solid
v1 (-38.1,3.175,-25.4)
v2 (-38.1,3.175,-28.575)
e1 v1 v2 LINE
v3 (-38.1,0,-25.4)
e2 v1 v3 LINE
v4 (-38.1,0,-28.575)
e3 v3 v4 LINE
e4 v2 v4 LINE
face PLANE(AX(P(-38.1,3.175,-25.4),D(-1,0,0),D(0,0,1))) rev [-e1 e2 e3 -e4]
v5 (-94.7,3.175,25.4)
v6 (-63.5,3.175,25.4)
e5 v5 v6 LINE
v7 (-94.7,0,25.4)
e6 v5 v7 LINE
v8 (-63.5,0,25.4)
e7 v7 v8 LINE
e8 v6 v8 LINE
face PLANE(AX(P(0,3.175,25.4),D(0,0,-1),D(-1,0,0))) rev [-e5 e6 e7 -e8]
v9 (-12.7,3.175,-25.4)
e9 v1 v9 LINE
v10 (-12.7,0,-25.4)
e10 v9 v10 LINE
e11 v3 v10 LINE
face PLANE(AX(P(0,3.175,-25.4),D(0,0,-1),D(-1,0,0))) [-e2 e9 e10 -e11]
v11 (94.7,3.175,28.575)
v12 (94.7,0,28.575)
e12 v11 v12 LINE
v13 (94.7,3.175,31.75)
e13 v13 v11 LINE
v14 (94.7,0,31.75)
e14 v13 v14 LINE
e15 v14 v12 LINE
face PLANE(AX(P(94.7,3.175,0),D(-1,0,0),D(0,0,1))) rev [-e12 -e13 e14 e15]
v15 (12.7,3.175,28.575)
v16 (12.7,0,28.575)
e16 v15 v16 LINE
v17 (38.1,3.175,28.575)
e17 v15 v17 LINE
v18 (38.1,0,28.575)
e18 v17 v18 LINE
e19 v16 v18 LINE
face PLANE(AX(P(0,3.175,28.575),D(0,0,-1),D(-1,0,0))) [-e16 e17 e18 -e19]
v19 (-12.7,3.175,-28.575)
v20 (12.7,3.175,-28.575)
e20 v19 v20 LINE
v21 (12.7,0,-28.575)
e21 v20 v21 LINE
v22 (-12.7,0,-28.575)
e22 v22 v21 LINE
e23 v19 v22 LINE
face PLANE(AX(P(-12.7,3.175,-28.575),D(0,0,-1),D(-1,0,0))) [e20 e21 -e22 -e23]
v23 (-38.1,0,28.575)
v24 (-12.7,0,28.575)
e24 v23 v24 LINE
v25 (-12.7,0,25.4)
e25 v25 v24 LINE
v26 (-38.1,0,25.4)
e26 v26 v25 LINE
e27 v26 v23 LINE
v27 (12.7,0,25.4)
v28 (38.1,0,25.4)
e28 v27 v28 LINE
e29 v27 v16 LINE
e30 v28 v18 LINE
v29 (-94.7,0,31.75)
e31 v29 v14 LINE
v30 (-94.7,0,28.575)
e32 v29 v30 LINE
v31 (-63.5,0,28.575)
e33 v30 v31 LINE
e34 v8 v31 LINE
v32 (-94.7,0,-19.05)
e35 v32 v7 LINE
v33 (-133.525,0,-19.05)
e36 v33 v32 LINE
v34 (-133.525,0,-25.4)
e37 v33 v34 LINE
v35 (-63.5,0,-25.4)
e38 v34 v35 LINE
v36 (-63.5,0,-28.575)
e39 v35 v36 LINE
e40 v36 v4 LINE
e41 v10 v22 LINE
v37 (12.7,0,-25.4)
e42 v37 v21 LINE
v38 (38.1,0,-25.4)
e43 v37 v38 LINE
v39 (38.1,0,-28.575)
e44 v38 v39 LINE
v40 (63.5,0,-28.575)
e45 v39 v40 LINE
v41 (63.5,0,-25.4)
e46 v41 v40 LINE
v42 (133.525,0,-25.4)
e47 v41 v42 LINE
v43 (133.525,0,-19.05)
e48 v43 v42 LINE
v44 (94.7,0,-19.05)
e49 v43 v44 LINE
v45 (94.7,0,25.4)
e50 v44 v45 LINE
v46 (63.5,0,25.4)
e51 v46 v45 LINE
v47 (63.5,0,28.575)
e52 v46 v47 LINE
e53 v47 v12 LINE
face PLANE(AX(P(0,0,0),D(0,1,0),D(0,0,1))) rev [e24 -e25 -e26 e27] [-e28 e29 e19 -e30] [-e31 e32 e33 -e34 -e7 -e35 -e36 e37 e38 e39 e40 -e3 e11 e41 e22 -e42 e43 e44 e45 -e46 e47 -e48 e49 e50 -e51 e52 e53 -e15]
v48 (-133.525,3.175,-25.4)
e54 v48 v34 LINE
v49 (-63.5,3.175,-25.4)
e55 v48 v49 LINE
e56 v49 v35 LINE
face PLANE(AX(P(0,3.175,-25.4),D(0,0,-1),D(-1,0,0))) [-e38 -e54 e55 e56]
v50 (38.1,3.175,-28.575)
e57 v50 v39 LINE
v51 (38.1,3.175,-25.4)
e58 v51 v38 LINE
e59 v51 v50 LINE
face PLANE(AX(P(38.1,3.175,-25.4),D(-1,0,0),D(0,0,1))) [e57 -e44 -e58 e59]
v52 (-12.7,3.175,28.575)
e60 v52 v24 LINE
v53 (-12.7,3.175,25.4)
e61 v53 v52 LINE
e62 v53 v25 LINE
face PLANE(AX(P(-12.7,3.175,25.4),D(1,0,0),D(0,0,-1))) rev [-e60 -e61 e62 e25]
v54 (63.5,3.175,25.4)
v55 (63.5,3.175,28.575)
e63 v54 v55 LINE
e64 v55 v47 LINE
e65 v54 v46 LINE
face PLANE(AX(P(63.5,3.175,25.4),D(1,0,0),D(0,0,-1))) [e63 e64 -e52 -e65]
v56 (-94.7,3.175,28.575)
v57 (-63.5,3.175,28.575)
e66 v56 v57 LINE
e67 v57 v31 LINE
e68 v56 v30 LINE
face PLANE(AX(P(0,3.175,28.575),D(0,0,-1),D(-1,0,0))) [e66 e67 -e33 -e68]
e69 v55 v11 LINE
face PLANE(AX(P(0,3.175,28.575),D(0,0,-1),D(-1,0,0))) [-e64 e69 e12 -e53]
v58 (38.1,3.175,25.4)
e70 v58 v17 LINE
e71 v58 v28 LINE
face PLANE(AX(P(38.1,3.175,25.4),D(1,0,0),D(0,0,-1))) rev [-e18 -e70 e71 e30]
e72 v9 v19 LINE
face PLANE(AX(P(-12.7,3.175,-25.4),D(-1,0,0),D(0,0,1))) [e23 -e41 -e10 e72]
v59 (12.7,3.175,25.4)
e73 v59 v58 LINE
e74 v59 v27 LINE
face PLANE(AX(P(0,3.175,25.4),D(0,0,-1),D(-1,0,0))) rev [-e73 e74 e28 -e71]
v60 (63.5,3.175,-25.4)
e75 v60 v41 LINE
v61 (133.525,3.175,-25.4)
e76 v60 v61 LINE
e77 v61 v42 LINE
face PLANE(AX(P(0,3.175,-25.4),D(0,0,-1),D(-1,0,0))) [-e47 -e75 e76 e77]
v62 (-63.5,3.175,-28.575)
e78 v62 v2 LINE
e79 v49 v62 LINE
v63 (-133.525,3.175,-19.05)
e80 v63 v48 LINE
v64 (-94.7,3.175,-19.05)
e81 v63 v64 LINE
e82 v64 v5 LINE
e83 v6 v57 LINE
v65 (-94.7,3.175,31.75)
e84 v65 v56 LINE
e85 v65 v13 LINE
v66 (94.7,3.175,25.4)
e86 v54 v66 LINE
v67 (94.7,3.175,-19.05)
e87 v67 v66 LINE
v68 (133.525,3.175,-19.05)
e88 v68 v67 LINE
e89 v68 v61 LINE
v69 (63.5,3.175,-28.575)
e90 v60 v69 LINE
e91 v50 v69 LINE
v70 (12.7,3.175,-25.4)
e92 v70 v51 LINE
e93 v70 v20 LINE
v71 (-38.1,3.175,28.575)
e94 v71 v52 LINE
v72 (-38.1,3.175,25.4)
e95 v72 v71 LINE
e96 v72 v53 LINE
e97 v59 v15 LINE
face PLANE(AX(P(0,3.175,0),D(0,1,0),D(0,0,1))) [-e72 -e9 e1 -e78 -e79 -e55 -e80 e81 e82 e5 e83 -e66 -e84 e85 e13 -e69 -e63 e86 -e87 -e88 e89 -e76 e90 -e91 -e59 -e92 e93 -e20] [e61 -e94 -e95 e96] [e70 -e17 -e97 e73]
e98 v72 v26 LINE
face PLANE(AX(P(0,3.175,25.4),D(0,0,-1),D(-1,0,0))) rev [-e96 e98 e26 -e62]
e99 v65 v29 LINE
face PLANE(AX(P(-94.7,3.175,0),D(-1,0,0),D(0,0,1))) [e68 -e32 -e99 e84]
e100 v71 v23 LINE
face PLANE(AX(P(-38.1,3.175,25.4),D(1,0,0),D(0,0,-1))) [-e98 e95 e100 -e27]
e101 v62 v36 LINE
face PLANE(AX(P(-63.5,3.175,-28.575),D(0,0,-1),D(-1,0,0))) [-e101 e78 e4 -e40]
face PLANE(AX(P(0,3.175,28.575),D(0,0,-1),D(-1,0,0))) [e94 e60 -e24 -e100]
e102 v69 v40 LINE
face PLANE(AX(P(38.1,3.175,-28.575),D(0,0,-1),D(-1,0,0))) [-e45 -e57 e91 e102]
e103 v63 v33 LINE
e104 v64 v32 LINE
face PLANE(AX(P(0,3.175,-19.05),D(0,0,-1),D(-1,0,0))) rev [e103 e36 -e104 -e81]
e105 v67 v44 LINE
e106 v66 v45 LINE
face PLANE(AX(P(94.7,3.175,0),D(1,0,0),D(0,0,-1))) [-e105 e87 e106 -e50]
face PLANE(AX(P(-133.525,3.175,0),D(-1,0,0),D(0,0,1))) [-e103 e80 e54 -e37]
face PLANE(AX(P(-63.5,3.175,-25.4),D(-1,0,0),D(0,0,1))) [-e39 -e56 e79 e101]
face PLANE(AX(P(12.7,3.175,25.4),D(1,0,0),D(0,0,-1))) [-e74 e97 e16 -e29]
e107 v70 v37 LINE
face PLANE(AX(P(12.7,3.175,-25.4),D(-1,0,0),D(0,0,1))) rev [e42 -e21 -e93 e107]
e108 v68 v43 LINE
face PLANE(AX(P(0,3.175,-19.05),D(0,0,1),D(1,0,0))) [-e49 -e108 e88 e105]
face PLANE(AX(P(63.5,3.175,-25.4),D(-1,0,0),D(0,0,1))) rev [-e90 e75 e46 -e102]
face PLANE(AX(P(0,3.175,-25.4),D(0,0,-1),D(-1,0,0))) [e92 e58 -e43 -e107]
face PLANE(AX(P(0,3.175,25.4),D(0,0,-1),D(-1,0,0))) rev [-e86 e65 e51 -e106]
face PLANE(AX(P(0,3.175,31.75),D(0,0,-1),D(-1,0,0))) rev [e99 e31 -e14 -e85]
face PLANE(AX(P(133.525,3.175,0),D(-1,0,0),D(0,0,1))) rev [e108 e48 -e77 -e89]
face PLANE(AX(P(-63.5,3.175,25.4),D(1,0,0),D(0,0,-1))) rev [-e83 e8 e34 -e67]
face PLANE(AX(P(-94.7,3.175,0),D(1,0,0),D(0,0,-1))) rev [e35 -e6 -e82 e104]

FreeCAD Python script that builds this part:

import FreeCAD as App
import Part
import Sketcher
from FreeCAD import Vector
Q = App.Units.Quantity

doc = App.newDocument("Part")
params = doc.addObject("Spreadsheet::Sheet", "Params")
for row, (alias, value) in enumerate([
    ("sketch1_width", "1 in"),
    ("sketch1_height", "0.25 in"),
    ("pad1_length", "0.125 in"),
], start=1):
    params.set(f"A{row}", alias)
    params.set(f"B{row}", "=" + value)
    params.setAlias(f"B{row}", alias)

body = doc.addObject("PartDesign::Body", "Body")

sketch1 = body.newObject("Sketcher::SketchObject", "Sketch")
sketch1.AttachmentSupport = (doc.getObject("XZ_Plane"), [""])
sketch1.MapMode = "FlatFace"
sketch1.addGeometry([
    Part.LineSegment(Vector(-133.5, -25.4, 0), Vector(-133.5, -19.1, 0)),
    Part.LineSegment(Vector(-133.5, -19.1, 0), Vector(-94.7, -19.1, 0)),
    Part.LineSegment(Vector(-94.7, -19.1, 0), Vector(-94.7, 25.4, 0)),
    Part.LineSegment(Vector(-94.7, 25.4, 0), Vector(-63.5, 25.4, 0)),
    Part.LineSegment(Vector(-63.5, 25.4, 0), Vector(-63.5, 28.6, 0)),
    Part.LineSegment(Vector(-63.5, 28.6, 0), Vector(-94.7, 28.6, 0)),
    Part.LineSegment(Vector(-94.7, 28.6, 0), Vector(-94.7, 31.8, 0)),
    Part.LineSegment(Vector(-94.7, 31.8, 0), Vector(94.7, 31.8, 0)),
    Part.LineSegment(Vector(94.7, 31.8, 0), Vector(94.7, 28.6, 0)),
    Part.LineSegment(Vector(94.7, 28.6, 0), Vector(63.5, 28.6, 0)),
    Part.LineSegment(Vector(63.5, 28.6, 0), Vector(63.5, 25.4, 0)),
    Part.LineSegment(Vector(63.5, 25.4, 0), Vector(94.7, 25.4, 0)),
    Part.LineSegment(Vector(94.7, 25.4, 0), Vector(94.7, -19.1, 0)),
    Part.LineSegment(Vector(94.7, -19.1, 0), Vector(133.5, -19.1, 0)),
    Part.LineSegment(Vector(133.5, -19.1, 0), Vector(133.5, -25.4, 0)),
    Part.LineSegment(Vector(133.5, -25.4, 0), Vector(63.5, -25.4, 0)),
    Part.LineSegment(Vector(63.5, -25.4, 0), Vector(63.5, -28.6, 0)),
    Part.LineSegment(Vector(63.5, -28.6, 0), Vector(38.1, -28.6, 0)),
    Part.LineSegment(Vector(38.1, -28.6, 0), Vector(38.1, -25.4, 0)),
    Part.LineSegment(Vector(38.1, -25.4, 0), Vector(12.7, -25.4, 0)),
    Part.LineSegment(Vector(12.7, -25.4, 0), Vector(12.7, -28.6, 0)),
    Part.LineSegment(Vector(12.7, -28.6, 0), Vector(-12.7, -28.6, 0)),
    Part.LineSegment(Vector(-12.7, -28.6, 0), Vector(-12.7, -25.4, 0)),
    Part.LineSegment(Vector(-12.7, -25.4, 0), Vector(-38.1, -25.4, 0)),
    Part.LineSegment(Vector(-38.1, -25.4, 0), Vector(-38.1, -28.6, 0)),
    Part.LineSegment(Vector(-38.1, -28.6, 0), Vector(-63.5, -28.6, 0)),
    Part.LineSegment(Vector(-63.5, -28.6, 0), Vector(-63.5, -25.4, 0)),
    Part.LineSegment(Vector(-63.5, -25.4, 0), Vector(-133.5, -25.4, 0)),
    Part.LineSegment(Vector(-12.7, 28.6, 0), Vector(-38.1, 28.6, 0)),
    Part.LineSegment(Vector(-38.1, 28.6, 0), Vector(-38.1, 25.4, 0)),
    Part.LineSegment(Vector(-38.1, 25.4, 0), Vector(-12.7, 25.4, 0)),
    Part.LineSegment(Vector(-12.7, 25.4, 0), Vector(-12.7, 28.6, 0)),
    Part.LineSegment(Vector(38.1, 28.6, 0), Vector(12.7, 28.6, 0)),
    Part.LineSegment(Vector(12.7, 28.6, 0), Vector(12.7, 25.4, 0)),
    Part.LineSegment(Vector(12.7, 25.4, 0), Vector(38.1, 25.4, 0)),
    Part.LineSegment(Vector(38.1, 25.4, 0), Vector(38.1, 28.6, 0)),
], False)
sketch1.addConstraint([
    Sketcher.Constraint("Coincident", 0, 2, 1, 1),
    Sketcher.Constraint("Coincident", 1, 2, 2, 1),
    Sketcher.Constraint("Coincident", 2, 2, 3, 1),
    Sketcher.Constraint("Coincident", 3, 2, 4, 1),
    Sketcher.Constraint("Coincident", 4, 2, 5, 1),
    Sketcher.Constraint("Coincident", 5, 2, 6, 1),
    Sketcher.Constraint("Coincident", 6, 2, 7, 1),
    Sketcher.Constraint("Coincident", 7, 2, 8, 1),
    Sketcher.Constraint("Coincident", 8, 2, 9, 1),
    Sketcher.Constraint("Coincident", 9, 2, 10, 1),
    Sketcher.Constraint("Coincident", 10, 2, 11, 1),
    Sketcher.Constraint("Coincident", 11, 2, 12, 1),
    Sketcher.Constraint("Coincident", 12, 2, 13, 1),
    Sketcher.Constraint("Coincident", 13, 2, 14, 1),
    Sketcher.Constraint("Coincident", 14, 2, 15, 1),
    Sketcher.Constraint("Coincident", 15, 2, 16, 1),
    Sketcher.Constraint("Coincident", 16, 2, 17, 1),
    Sketcher.Constraint("Coincident", 17, 2, 18, 1),
    Sketcher.Constraint("Coincident", 18, 2, 19, 1),
    Sketcher.Constraint("Coincident", 19, 2, 20, 1),
    Sketcher.Constraint("Coincident", 20, 2, 21, 1),
    Sketcher.Constraint("Coincident", 21, 2, 22, 1),
    Sketcher.Constraint("Coincident", 22, 2, 23, 1),
    Sketcher.Constraint("Coincident", 23, 2, 24, 1),
    Sketcher.Constraint("Coincident", 24, 2, 25, 1),
    Sketcher.Constraint("Coincident", 25, 2, 26, 1),
    Sketcher.Constraint("Coincident", 26, 2, 27, 1),
    Sketcher.Constraint("Coincident", 27, 2, 0, 1),
    Sketcher.Constraint("Coincident", 28, 2, 29, 1),
    Sketcher.Constraint("Coincident", 29, 2, 30, 1),
    Sketcher.Constraint("Coincident", 30, 2, 31, 1),
    Sketcher.Constraint("Coincident", 31, 2, 28, 1),
    Sketcher.Constraint("Coincident", 32, 2, 33, 1),
    Sketcher.Constraint("Coincident", 33, 2, 34, 1),
    Sketcher.Constraint("Coincident", 34, 2, 35, 1),
    Sketcher.Constraint("Coincident", 35, 2, 32, 1),
    Sketcher.Constraint("Vertical", 0),
    Sketcher.Constraint("Horizontal", 1),
    Sketcher.Constraint("Vertical", 2),
    Sketcher.Constraint("Horizontal", 3),
    Sketcher.Constraint("Vertical", 4),
    Sketcher.Constraint("Horizontal", 5),
    Sketcher.Constraint("Vertical", 6),
    Sketcher.Constraint("Horizontal", 7),
    Sketcher.Constraint("Vertical", 8),
    Sketcher.Constraint("Horizontal", 9),
    Sketcher.Constraint("Vertical", 10),
    Sketcher.Constraint("Horizontal", 11),
    Sketcher.Constraint("Vertical", 12),
    Sketcher.Constraint("Horizontal", 13),
    Sketcher.Constraint("Vertical", 14),
    Sketcher.Constraint("Horizontal", 15),
    Sketcher.Constraint("Vertical", 16),
    Sketcher.Constraint("Horizontal", 17),
    Sketcher.Constraint("Vertical", 18),
    Sketcher.Constraint("Horizontal", 19),
    Sketcher.Constraint("Vertical", 20),
    Sketcher.Constraint("Horizontal", 21),
    Sketcher.Constraint("Vertical", 22),
    Sketcher.Constraint("Horizontal", 23),
    Sketcher.Constraint("Vertical", 24),
    Sketcher.Constraint("Horizontal", 25),
    Sketcher.Constraint("Vertical", 26),
    Sketcher.Constraint("Horizontal", 27),
    Sketcher.Constraint("Horizontal", 28),
    Sketcher.Constraint("Vertical", 29),
    Sketcher.Constraint("Horizontal", 30),
    Sketcher.Constraint("Vertical", 31),
    Sketcher.Constraint("Horizontal", 32),
    Sketcher.Constraint("Vertical", 33),
    Sketcher.Constraint("Horizontal", 34),
    Sketcher.Constraint("Vertical", 35),
    Sketcher.Constraint("Symmetric", 3, 2, 15, 2, -1, 1),
    Sketcher.Constraint("Symmetric", 9, 2, 25, 2, -1, 1),
    Sketcher.Constraint("Symmetric", 17, 2, 28, 2, -1, 1),
    Sketcher.Constraint("Symmetric", 19, 2, 30, 2, -1, 1),
    Sketcher.Constraint("Symmetric", 21, 2, 32, 2, -1, 1),
    Sketcher.Constraint("Symmetric", 23, 2, 34, 2, -1, 1),
    Sketcher.Constraint("Symmetric", 5, 2, 8, 2, -2),
    Sketcher.Constraint("Symmetric", 3, 2, 10, 2, -2),
    Sketcher.Constraint("Symmetric", 1, 2, 12, 2, -2),
    Sketcher.Constraint("Symmetric", 19, 2, 22, 2, -2),
    Sketcher.Constraint("Symmetric", 17, 2, 24, 2, -2),
    Sketcher.Constraint("Symmetric", 14, 2, 27, 2, -2),
    Sketcher.Constraint("Horizontal", 15, 2, 18, 2),
    Sketcher.Constraint("Horizontal", 17, 2, 20, 2),
    Sketcher.Constraint("Vertical", 2, 2, 5, 2),
    Sketcher.Constraint("Equal", 17, 19),
    Sketcher.Constraint("Equal", 19, 21),
    Sketcher.Constraint("Equal", 4, 6),
    Sketcher.Constraint("DistanceX", 17, 2, 17, 1, Q("1 in")),
    Sketcher.Constraint("DistanceY", -1, 1, 2, 2, Q("1 in")),
    Sketcher.Constraint("DistanceY", 1, 2, 6, 2, Q("2 in")),
    Sketcher.Constraint("DistanceY", 0, 1, 0, 2, Q("0.25 in")),
    Sketcher.Constraint("DistanceX", 1, 1, 1, 2, Q("38.825 mm")),
    Sketcher.Constraint("DistanceX", 3, 1, 3, 2, Q("31.2 mm")),
])
sketch1.setExpression("Constraints[90]", "Params.sketch1_width")
sketch1.setExpression("Constraints[93]", "Params.sketch1_height")
pad1 = body.newObject("PartDesign::Pad", "Pad")
pad1.Profile = sketch1
pad1.setExpression("Length", "Params.pad1_length")
pad1.Reversed = True

doc.recompute()
